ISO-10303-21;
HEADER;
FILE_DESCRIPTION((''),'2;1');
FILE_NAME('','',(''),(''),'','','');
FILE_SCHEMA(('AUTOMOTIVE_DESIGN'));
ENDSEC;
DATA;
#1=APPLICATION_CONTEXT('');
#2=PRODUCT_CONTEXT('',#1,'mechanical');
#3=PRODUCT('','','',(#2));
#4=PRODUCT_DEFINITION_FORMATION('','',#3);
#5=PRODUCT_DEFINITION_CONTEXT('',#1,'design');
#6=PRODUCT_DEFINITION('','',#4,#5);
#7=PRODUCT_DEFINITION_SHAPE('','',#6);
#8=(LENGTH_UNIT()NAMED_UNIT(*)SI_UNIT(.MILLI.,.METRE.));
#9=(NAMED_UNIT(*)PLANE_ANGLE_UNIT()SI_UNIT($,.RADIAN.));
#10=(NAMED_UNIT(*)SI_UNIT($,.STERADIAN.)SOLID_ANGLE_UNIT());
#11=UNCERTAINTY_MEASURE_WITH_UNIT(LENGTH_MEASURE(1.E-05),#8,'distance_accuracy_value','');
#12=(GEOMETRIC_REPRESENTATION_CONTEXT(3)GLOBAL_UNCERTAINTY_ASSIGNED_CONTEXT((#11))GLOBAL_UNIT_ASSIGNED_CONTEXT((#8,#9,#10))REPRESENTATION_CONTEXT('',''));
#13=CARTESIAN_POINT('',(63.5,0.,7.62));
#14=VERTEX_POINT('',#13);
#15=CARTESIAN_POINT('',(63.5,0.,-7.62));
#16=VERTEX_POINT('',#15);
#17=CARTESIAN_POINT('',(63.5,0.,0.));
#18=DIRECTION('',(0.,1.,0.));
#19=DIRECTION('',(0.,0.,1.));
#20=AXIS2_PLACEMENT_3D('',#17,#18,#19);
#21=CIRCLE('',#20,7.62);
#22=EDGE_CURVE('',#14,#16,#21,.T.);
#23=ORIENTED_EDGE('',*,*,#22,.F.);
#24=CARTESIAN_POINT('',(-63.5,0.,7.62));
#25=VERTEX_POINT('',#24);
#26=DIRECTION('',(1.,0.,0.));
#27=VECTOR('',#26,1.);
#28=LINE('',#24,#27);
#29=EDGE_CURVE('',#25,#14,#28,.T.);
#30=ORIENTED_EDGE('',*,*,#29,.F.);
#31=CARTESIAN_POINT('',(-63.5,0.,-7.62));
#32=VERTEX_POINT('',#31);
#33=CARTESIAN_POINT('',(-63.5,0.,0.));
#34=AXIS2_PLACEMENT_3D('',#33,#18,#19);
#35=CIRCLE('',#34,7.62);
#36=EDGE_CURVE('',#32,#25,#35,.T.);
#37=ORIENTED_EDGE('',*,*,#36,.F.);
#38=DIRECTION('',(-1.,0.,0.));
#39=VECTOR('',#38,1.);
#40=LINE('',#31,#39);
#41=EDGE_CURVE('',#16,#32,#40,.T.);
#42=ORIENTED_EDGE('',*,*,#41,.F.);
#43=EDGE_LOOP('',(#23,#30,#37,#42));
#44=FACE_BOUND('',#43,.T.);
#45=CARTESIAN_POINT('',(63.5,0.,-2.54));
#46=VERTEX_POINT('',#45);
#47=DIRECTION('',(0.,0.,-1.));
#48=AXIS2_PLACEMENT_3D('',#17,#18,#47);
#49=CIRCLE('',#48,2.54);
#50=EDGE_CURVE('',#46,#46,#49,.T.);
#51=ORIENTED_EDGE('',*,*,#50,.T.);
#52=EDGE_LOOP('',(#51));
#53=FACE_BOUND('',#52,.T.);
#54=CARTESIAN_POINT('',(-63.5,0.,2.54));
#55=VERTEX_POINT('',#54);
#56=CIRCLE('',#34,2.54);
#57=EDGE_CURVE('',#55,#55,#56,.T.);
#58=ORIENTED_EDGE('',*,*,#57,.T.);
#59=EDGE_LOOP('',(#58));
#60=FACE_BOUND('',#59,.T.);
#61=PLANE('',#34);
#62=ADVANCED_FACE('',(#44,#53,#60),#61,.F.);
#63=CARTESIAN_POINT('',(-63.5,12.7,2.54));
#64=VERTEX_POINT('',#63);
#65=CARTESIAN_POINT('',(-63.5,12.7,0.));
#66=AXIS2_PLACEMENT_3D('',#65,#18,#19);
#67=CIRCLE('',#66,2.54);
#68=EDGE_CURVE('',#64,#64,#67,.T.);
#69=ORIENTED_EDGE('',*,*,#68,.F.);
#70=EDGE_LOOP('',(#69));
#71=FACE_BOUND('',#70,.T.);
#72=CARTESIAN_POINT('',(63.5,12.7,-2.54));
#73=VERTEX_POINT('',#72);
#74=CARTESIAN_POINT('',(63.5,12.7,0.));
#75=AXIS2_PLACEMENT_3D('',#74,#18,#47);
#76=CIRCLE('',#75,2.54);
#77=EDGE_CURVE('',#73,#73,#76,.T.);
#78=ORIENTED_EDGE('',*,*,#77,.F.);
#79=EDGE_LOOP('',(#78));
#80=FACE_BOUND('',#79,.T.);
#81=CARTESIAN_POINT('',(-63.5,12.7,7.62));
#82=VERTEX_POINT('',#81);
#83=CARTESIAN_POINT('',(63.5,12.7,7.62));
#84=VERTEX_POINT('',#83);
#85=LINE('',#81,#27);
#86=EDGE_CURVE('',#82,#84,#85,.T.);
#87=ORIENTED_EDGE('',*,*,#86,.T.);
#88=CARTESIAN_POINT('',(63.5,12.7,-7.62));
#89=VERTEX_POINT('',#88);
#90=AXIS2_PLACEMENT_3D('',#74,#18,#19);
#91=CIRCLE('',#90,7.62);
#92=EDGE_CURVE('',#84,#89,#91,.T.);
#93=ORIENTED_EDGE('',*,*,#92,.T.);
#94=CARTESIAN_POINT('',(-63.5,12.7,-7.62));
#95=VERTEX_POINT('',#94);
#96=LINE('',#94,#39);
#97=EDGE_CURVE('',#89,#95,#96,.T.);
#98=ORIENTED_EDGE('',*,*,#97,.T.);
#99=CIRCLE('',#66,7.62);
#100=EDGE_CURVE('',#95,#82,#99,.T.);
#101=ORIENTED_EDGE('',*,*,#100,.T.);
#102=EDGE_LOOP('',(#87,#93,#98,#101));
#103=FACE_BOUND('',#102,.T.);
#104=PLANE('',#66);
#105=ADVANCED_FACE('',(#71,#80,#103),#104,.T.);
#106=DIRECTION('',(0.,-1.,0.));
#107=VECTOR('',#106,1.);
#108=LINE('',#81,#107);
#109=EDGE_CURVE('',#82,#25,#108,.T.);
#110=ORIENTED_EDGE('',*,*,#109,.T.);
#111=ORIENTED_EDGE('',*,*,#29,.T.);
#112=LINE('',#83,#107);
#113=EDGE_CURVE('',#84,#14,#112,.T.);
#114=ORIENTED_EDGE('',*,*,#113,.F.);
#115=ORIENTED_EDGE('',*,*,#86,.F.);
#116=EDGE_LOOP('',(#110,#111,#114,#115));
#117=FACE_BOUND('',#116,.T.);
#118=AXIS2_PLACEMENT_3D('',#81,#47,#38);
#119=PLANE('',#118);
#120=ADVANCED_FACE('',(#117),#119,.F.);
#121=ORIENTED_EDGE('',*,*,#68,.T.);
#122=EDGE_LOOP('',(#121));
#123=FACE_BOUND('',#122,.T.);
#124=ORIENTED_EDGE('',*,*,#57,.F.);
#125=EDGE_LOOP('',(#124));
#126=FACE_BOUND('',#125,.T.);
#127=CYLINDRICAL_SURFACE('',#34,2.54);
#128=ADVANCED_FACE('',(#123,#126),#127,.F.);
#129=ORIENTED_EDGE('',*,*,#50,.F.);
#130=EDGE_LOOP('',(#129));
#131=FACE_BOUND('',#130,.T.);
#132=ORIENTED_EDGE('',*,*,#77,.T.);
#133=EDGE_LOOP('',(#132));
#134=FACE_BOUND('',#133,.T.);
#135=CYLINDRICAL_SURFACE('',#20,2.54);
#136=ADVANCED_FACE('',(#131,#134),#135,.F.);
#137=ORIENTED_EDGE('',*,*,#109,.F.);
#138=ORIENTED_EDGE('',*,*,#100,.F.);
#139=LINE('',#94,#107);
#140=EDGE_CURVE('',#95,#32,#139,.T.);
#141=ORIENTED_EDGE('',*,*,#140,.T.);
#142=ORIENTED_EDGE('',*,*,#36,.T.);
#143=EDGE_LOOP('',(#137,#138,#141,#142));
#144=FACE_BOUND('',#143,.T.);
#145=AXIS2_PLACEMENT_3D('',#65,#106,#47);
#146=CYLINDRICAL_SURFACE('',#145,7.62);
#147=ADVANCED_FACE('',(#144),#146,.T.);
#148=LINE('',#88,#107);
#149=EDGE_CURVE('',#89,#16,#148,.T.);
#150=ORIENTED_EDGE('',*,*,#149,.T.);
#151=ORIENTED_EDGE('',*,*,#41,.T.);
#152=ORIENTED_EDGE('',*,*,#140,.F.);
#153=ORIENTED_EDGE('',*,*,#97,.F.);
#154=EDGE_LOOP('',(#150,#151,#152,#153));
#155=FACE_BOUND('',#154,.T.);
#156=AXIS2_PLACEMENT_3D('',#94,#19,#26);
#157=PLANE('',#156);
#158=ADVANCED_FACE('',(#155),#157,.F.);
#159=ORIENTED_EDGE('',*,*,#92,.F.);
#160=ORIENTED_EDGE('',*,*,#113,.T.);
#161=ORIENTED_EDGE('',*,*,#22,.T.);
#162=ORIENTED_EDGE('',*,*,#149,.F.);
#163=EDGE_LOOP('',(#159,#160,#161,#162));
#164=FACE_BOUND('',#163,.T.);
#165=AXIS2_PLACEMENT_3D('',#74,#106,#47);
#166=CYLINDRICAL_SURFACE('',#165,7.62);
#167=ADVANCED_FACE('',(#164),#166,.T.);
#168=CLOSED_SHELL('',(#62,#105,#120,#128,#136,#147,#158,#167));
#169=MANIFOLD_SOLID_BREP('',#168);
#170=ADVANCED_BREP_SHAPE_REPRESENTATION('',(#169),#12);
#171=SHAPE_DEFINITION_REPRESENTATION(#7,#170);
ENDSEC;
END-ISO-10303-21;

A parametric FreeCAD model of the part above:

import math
import FreeCAD as App
import Part
import Sketcher

V = App.Vector
Q = App.Units.Quantity

doc = App.newDocument("Part")
body = doc.addObject("PartDesign::Body", "Body")

sketch1 = body.newObject("Sketcher::SketchObject", "Sketch")
sketch1.AttachmentSupport = (doc.getObject("XZ_Plane"), [""])
sketch1.MapMode = "FlatFace"
sketch1.addGeometry([
    Part.LineSegment(V(63.5, -7.62, 0), V(-63.5, -7.62, 0)),
    Part.ArcOfCircle(Part.Circle(V(-63.5, 0, 0), V(0, 0, 1), 7.62), math.radians(90), math.radians(270)),
    Part.LineSegment(V(-63.5, 7.62, 0), V(63.5, 7.62, 0)),
    Part.ArcOfCircle(Part.Circle(V(63.5, 0, 0), V(0, 0, 1), 7.62), math.radians(-90), math.radians(90)),
], False)
sketch1.addConstraint([
    Sketcher.Constraint("Tangent", 0, 2, 1, 2),
    Sketcher.Constraint("Tangent", 1, 1, 2, 1),
    Sketcher.Constraint("Tangent", 2, 2, 3, 2),
    Sketcher.Constraint("Tangent", 3, 1, 0, 1),
    Sketcher.Constraint("Horizontal", 0),
    Sketcher.Constraint("Horizontal", 2),
    Sketcher.Constraint("Symmetric", 1, 3, 3, 3, -1, 1),
    Sketcher.Constraint("Radius", 1, Q("0.3 in")),
    Sketcher.Constraint("DistanceX", 0, 2, 0, 1, Q("5 in")),
])
pad1 = body.newObject("PartDesign::Pad", "Pad")
pad1.Profile = sketch1
pad1.Length = Q("0.5 in")
pad1.Reversed = True

sketch2 = body.newObject("Sketcher::SketchObject", "Sketch001")
sketch2.AttachmentSupport = (doc.getObject("XZ_Plane"), [""])
sketch2.MapMode = "FlatFace"
sketch2.AttachmentOffset = App.Placement(V(0, 0, -0.5 * 25.4), App.Rotation())
sketch2.addGeometry([
    Part.Circle(V(-63.5, 0, 0), V(0, 0, 1), 2.54),
    Part.Circle(V(63.5, 0, 0), V(0, 0, 1), 2.54),
], False)
sketch2.addConstraint([
    Sketcher.Constraint("Equal", 0, 1),
    Sketcher.Constraint("Symmetric", 0, 3, 1, 3, -1, 1),
    Sketcher.Constraint("PointOnObject", 0, 3, -1),
    Sketcher.Constraint("Diameter", 0, Q("0.2 in")),
    Sketcher.Constraint("DistanceX", 0, 3, 1, 3, Q("5 in")),
])
pocket1 = body.newObject("PartDesign::Pocket", "Pocket")
pocket1.Profile = sketch2
pocket1.Type = "ThroughAll"
pocket1.Reversed = True

doc.recompute()
